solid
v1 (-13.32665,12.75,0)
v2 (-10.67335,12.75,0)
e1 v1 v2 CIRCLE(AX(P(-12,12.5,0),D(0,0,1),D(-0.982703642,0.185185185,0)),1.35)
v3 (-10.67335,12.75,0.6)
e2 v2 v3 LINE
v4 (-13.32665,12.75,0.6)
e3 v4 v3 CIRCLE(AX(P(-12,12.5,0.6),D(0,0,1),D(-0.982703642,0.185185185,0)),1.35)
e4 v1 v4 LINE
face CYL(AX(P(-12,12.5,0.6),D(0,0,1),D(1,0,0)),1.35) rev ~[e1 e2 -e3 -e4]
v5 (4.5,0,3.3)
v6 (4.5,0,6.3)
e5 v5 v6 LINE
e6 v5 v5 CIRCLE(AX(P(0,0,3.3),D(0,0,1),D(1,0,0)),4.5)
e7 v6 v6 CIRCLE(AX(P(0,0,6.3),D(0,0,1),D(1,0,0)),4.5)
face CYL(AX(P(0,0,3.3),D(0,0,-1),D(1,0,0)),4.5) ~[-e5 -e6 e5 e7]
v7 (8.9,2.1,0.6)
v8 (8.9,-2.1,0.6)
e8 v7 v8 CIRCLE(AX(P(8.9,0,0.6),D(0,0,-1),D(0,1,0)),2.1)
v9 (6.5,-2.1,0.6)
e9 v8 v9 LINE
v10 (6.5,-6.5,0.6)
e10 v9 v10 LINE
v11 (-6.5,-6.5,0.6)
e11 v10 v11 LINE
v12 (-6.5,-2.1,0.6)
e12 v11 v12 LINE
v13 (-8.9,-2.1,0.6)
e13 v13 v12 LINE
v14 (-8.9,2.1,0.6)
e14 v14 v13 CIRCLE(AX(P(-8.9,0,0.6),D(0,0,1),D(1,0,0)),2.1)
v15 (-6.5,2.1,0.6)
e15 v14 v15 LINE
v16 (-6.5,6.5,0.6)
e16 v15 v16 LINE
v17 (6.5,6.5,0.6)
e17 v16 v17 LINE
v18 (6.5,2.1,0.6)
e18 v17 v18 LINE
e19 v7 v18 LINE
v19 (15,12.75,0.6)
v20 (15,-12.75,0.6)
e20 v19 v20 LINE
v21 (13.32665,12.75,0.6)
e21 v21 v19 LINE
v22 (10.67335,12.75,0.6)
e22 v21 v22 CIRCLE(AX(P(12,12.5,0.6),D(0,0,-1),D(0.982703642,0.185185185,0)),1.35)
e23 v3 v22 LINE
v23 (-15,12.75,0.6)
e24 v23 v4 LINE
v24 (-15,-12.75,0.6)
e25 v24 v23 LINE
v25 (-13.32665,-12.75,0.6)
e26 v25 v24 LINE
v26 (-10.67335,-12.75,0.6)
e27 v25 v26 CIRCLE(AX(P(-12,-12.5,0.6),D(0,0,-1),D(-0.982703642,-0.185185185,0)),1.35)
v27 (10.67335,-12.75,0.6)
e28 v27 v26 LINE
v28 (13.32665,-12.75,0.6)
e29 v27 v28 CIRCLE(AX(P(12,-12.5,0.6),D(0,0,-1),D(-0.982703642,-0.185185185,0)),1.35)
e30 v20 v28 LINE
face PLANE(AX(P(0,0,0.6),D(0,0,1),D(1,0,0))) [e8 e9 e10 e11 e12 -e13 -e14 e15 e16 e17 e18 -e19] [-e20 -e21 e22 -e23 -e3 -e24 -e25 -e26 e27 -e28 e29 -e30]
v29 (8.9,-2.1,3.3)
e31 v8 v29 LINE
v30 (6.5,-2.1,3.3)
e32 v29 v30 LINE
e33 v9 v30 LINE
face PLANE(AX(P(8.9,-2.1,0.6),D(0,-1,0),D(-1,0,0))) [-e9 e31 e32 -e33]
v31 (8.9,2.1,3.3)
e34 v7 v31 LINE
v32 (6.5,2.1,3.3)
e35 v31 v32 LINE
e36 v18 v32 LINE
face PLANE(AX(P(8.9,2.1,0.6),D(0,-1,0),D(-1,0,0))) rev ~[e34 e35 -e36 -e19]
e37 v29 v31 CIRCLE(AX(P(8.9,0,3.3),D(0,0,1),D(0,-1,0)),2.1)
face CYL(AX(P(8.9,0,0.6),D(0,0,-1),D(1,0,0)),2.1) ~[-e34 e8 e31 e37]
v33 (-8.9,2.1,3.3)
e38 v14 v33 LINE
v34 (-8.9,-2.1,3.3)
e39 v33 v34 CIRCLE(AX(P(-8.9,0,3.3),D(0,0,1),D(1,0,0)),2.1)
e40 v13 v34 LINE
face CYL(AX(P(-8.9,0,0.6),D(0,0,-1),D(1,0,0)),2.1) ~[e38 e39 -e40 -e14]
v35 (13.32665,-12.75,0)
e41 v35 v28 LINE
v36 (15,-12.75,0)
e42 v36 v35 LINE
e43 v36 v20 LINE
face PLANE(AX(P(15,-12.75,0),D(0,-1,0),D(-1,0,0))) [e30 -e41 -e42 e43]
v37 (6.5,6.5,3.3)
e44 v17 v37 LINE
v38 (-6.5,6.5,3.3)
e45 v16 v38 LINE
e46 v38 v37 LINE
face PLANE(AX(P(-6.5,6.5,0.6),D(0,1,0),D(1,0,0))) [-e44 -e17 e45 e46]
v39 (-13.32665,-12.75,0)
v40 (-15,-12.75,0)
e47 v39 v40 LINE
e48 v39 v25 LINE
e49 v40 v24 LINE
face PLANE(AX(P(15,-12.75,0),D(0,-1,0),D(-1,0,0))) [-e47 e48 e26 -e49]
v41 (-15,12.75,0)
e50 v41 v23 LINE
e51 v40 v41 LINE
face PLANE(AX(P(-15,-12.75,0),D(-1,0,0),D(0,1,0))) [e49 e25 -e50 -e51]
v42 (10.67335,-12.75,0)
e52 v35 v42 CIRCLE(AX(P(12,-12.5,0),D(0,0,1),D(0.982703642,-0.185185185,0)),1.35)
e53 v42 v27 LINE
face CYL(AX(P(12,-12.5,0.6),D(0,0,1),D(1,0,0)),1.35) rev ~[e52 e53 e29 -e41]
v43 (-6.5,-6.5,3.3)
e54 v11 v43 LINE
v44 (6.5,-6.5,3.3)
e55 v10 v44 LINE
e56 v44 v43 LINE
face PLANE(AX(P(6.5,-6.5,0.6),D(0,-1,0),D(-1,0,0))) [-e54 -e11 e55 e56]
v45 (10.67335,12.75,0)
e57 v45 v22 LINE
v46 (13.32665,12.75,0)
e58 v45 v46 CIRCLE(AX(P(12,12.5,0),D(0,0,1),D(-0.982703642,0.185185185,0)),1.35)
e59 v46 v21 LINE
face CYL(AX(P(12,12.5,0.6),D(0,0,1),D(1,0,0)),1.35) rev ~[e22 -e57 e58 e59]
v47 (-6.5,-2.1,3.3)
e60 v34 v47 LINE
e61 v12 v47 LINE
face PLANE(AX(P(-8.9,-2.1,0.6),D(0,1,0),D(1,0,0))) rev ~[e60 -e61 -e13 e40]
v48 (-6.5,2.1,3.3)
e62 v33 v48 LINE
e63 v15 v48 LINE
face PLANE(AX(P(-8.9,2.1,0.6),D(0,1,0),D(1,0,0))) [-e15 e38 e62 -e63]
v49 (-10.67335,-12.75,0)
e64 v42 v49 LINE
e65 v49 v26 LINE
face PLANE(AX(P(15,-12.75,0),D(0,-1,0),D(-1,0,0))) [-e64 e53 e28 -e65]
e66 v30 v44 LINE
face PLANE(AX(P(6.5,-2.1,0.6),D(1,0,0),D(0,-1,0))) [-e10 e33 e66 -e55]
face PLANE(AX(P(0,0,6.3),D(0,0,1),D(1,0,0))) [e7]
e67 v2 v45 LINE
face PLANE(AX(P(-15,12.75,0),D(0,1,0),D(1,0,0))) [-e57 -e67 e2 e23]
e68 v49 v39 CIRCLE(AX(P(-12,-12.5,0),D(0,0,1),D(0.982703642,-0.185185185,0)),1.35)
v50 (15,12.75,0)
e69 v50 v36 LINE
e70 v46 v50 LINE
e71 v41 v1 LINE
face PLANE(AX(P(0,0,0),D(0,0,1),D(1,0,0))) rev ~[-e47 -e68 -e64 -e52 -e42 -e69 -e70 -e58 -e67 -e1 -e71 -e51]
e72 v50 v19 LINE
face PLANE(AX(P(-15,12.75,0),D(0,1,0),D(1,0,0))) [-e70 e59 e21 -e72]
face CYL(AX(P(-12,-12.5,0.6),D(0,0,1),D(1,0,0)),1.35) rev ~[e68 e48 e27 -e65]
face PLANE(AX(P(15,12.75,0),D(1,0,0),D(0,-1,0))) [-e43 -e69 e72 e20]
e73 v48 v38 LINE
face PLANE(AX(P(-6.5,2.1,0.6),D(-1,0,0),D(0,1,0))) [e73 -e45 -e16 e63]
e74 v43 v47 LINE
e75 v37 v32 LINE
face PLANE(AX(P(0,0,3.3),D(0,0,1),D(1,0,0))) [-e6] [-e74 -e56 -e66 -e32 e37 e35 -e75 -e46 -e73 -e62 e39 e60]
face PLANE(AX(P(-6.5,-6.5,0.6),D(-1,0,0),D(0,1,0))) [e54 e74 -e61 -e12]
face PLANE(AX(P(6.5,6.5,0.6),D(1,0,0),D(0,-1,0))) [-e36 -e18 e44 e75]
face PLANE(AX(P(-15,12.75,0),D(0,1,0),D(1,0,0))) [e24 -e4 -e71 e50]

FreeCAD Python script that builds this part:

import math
import FreeCAD as App
import Part
import Sketcher


def add_polygon(sketch, points):
    """Adds a closed chain of lines whose ends are joined by coincident constraints."""
    first, n = sketch.GeometryCount, len(points)
    for a, b in zip(points, points[1:] + points[:1]):
        sketch.addGeometry(Part.LineSegment(App.Vector(*a, 0), App.Vector(*b, 0)), False)
    for i in range(n):
        sketch.addConstraint(Sketcher.Constraint("Coincident", first + i, 2, first + (i + 1) % n, 1))

doc = App.newDocument("Part")
body = doc.addObject("PartDesign::Body", "Body")

sketch1 = body.newObject("Sketcher::SketchObject", "Sketch")
sketch1.AttachmentSupport = (doc.getObject("XY_Plane"), [""])
sketch1.MapMode = "FlatFace"
add_polygon(sketch1, [(15, 13), (-15, 13), (-15, -13), (15, -13)])
sketch1.addConstraint([
    Sketcher.Constraint("Horizontal", 0),
    Sketcher.Constraint("Vertical", 1),
    Sketcher.Constraint("Horizontal", 2),
    Sketcher.Constraint("Vertical", 3),
    Sketcher.Constraint("Symmetric", 0, 2, 2, 2, -1, 1),
    Sketcher.Constraint("DistanceX", 0, 2, 0, 1, 30.0),
    Sketcher.Constraint("DistanceY", 1, 2, 1, 1, 25.5),
])
pad1 = body.newObject("PartDesign::Pad", "Pad")
pad1.Profile = sketch1
pad1.Length = 0.6

sketch2 = body.newObject("Sketcher::SketchObject", "Sketch001")
sketch2.AttachmentSupport = (doc.getObject("XY_Plane"), [""])
sketch2.MapMode = "FlatFace"
sketch2.AttachmentOffset = App.Placement(App.Vector(0, 0, 0.6), App.Rotation())
sketch2.addGeometry([
    Part.Circle(App.Vector(-12, 12.5, 0), App.Vector(0, 0, 1), 1.4),
    Part.Circle(App.Vector(12, 12.5, 0), App.Vector(0, 0, 1), 1.4),
    Part.Circle(App.Vector(-12, -12.5, 0), App.Vector(0, 0, 1), 1.4),
    Part.Circle(App.Vector(12, -12.5, 0), App.Vector(0, 0, 1), 1.4),
], False)
sketch2.addConstraint([
    Sketcher.Constraint("Equal", 0, 1),
    Sketcher.Constraint("Equal", 1, 2),
    Sketcher.Constraint("Equal", 2, 3),
    Sketcher.Constraint("Symmetric", 1, 3, 2, 3, -1, 1),
    Sketcher.Constraint("Symmetric", 0, 3, 3, 3, -1, 1),
    Sketcher.Constraint("Symmetric", 0, 3, 1, 3, -2),
    Sketcher.Constraint("Diameter", 0, 2.7),
    Sketcher.Constraint("DistanceX", 0, 3, 1, 3, 24.0),
    Sketcher.Constraint("DistanceY", 2, 3, 0, 3, 25.0),
])
pocket1 = body.newObject("PartDesign::Pocket", "Pocket")
pocket1.Profile = sketch2
pocket1.Length = 0.6

sketch3 = body.newObject("Sketcher::SketchObject", "Sketch002")
sketch3.AttachmentSupport = (doc.getObject("XY_Plane"), [""])
sketch3.MapMode = "FlatFace"
sketch3.AttachmentOffset = App.Placement(App.Vector(0, 0, 0.6), App.Rotation())
sketch3.addGeometry([
    Part.LineSegment(App.Vector(6.5, 6.5, 0), App.Vector(-6.5, 6.5, 0)),
    Part.LineSegment(App.Vector(-6.5, 6.5, 0), App.Vector(-6.5, 2.1, 0)),
    Part.LineSegment(App.Vector(-6.5, 2.1, 0), App.Vector(-8.9, 2.1, 0)),
    Part.ArcOfCircle(Part.Circle(App.Vector(-8.9, 0, 0), App.Vector(0, 0, 1), 2.1), math.radians(90), math.radians(270)),
    Part.LineSegment(App.Vector(-8.9, -2.1, 0), App.Vector(-6.5, -2.1, 0)),
    Part.LineSegment(App.Vector(-6.5, -2.1, 0), App.Vector(-6.5, -6.5, 0)),
    Part.LineSegment(App.Vector(-6.5, -6.5, 0), App.Vector(6.5, -6.5, 0)),
    Part.LineSegment(App.Vector(6.5, -6.5, 0), App.Vector(6.5, -2.1, 0)),
    Part.LineSegment(App.Vector(6.5, -2.1, 0), App.Vector(8.9, -2.1, 0)),
    Part.ArcOfCircle(Part.Circle(App.Vector(8.9, 0, 0), App.Vector(0, 0, 1), 2.1), math.radians(-90), math.radians(90)),
    Part.LineSegment(App.Vector(8.9, 2.1, 0), App.Vector(6.5, 2.1, 0)),
    Part.LineSegment(App.Vector(6.5, 2.1, 0), App.Vector(6.5, 6.5, 0)),
], False)
sketch3.addConstraint([
    Sketcher.Constraint("Coincident", 0, 2, 1, 1),
    Sketcher.Constraint("Coincident", 1, 2, 2, 1),
    Sketcher.Constraint("Tangent", 2, 2, 3, 1),
    Sketcher.Constraint("Tangent", 3, 2, 4, 1),
    Sketcher.Constraint("Coincident", 4, 2, 5, 1),
    Sketcher.Constraint("Coincident", 5, 2, 6, 1),
    Sketcher.Constraint("Coincident", 6, 2, 7, 1),
    Sketcher.Constraint("Coincident", 7, 2, 8, 1),
    Sketcher.Constraint("Tangent", 8, 2, 9, 1),
    Sketcher.Constraint("Tangent", 9, 2, 10, 1),
    Sketcher.Constraint("Coincident", 10, 2, 11, 1),
    Sketcher.Constraint("Coincident", 11, 2, 0, 1),
    Sketcher.Constraint("Horizontal", 0),
    Sketcher.Constraint("Vertical", 1),
    Sketcher.Constraint("Horizontal", 2),
    Sketcher.Constraint("Horizontal", 4),
    Sketcher.Constraint("Vertical", 5),
    Sketcher.Constraint("Horizontal", 6),
    Sketcher.Constraint("Vertical", 7),
    Sketcher.Constraint("Horizontal", 8),
    Sketcher.Constraint("Horizontal", 10),
    Sketcher.Constraint("Vertical", 11),
    Sketcher.Constraint("Equal", 3, 9),
    Sketcher.Constraint("Symmetric", 3, 3, 9, 3, -1, 1),
    Sketcher.Constraint("Symmetric", 0, 2, 6, 2, -1, 1),
    Sketcher.Constraint("Symmetric", 4, 2, 7, 2, -2),
    Sketcher.Constraint("Vertical", 7, 2, 10, 2),
    Sketcher.Constraint("Radius", 3, 2.1),
    Sketcher.Constraint("DistanceX", 0, 2, 0, 1, 13.0),
    Sketcher.Constraint("DistanceX", 3, 3, 9, 3, 17.8),
    Sketcher.Constraint("DistanceY", 1, 2, 1, 1, 4.4),
])
pad2 = body.newObject("PartDesign::Pad", "Pad001")
pad2.Profile = sketch3
pad2.Length = 2.7

sketch4 = body.newObject("Sketcher::SketchObject", "Sketch003")
sketch4.AttachmentSupport = (doc.getObject("XY_Plane"), [""])
sketch4.MapMode = "FlatFace"
sketch4.AttachmentOffset = App.Placement(App.Vector(0, 0, 3.3), App.Rotation())
sketch4.addGeometry(Part.Circle(App.Vector(0, 0, 0), App.Vector(0, 0, 1), 4.5), False)
sketch4.addConstraint([
    Sketcher.Constraint("Coincident", 0, 3, -1, 1),
    Sketcher.Constraint("Diameter", 0, 9.0),
])
pad3 = body.newObject("PartDesign::Pad", "Pad002")
pad3.Profile = sketch4
pad3.Length = 3

doc.recompute()
